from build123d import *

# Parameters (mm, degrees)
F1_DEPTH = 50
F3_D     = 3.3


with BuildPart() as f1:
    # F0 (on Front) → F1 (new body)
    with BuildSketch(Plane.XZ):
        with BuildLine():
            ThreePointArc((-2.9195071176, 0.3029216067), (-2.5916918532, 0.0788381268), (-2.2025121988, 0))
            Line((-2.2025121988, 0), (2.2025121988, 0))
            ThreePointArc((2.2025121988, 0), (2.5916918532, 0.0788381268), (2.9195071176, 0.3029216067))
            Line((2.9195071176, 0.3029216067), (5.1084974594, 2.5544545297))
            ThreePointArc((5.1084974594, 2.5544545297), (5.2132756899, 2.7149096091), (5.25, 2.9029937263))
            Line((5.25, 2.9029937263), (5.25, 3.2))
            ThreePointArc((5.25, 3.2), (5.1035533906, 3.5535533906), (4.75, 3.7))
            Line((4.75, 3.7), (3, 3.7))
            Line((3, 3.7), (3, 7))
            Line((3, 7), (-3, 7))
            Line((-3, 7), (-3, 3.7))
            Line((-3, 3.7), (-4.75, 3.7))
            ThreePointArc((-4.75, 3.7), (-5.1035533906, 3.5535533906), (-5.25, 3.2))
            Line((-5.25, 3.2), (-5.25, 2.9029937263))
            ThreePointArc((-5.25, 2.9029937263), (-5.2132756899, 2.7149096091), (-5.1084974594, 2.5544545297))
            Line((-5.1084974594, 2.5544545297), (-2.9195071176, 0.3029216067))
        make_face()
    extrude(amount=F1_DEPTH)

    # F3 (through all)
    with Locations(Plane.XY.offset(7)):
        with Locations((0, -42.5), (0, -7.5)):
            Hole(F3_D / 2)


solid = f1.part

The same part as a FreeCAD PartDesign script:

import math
import FreeCAD as App
import Part
import Sketcher
Q = App.Units.Quantity

doc = App.newDocument("Part")
body = doc.addObject("PartDesign::Body", "Body")

# Sketch on XZ plane
sketch1 = body.newObject("Sketcher::SketchObject", "Sketch")
sketch1.AttachmentSupport = (doc.getObject("XZ_Plane"), [""])
sketch1.MapMode = "FlatFace"
sketch1.addGeometry([
    Part.ArcOfCircle(Part.Circle(App.Vector(-2.2, 1, 0), App.Vector(0, 0, 1), 1), math.radians(-136), math.radians(-90)),  # 0
    Part.LineSegment(App.Vector(-2.2, 0, 0), App.Vector(2.2, 0, 0)),  # 1
    Part.ArcOfCircle(Part.Circle(App.Vector(2.2, 1, 0), App.Vector(0, 0, 1), 1), math.radians(-90), math.radians(-44)),  # 2
    Part.LineSegment(App.Vector(2.92, 0.3, 0), App.Vector(5.11, 2.55, 0)),  # 3
    Part.ArcOfCircle(Part.Circle(App.Vector(4.75, 2.9, 0), App.Vector(0, 0, 1), 0.5), math.radians(-44), math.radians(0)),  # 4
    Part.LineSegment(App.Vector(5.25, 2.9, 0), App.Vector(5.25, 3.2, 0)),  # 5
    Part.ArcOfCircle(Part.Circle(App.Vector(4.75, 3.2, 0), App.Vector(0, 0, 1), 0.5), math.radians(0), math.radians(90)),  # 6
    Part.LineSegment(App.Vector(4.75, 3.7, 0), App.Vector(3, 3.7, 0)),  # 7
    Part.LineSegment(App.Vector(3, 3.7, 0), App.Vector(3, 7, 0)),  # 8
    Part.LineSegment(App.Vector(3, 7, 0), App.Vector(-3, 7, 0)),  # 9
    Part.LineSegment(App.Vector(-3, 7, 0), App.Vector(-3, 3.7, 0)),  # 10
    Part.LineSegment(App.Vector(-3, 3.7, 0), App.Vector(-4.75, 3.7, 0)),  # 11
    Part.ArcOfCircle(Part.Circle(App.Vector(-4.75, 3.2, 0), App.Vector(0, 0, 1), 0.5), math.radians(90), math.radians(180)),  # 12
    Part.LineSegment(App.Vector(-5.25, 3.2, 0), App.Vector(-5.25, 2.9, 0)),  # 13
    Part.ArcOfCircle(Part.Circle(App.Vector(-4.75, 2.9, 0), App.Vector(0, 0, 1), 0.5), math.radians(180), math.radians(224)),  # 14
    Part.LineSegment(App.Vector(-5.11, 2.55, 0), App.Vector(-2.92, 0.3, 0)),  # 15
], False)
sketch1.addConstraint([
    Sketcher.Constraint("Tangent", 0, 2, 1, 1),
    Sketcher.Constraint("Tangent", 1, 2, 2, 1),
    Sketcher.Constraint("Tangent", 2, 2, 3, 1),
    Sketcher.Constraint("Tangent", 3, 2, 4, 1),
    Sketcher.Constraint("Tangent", 4, 2, 5, 1),
    Sketcher.Constraint("Tangent", 5, 2, 6, 1),
    Sketcher.Constraint("Tangent", 6, 2, 7, 1),
    Sketcher.Constraint("Coincident", 7, 2, 8, 1),
    Sketcher.Constraint("Coincident", 8, 2, 9, 1),
    Sketcher.Constraint("Coincident", 9, 2, 10, 1),
    Sketcher.Constraint("Coincident", 10, 2, 11, 1),
    Sketcher.Constraint("Tangent", 11, 2, 12, 1),
    Sketcher.Constraint("Tangent", 12, 2, 13, 1),
    Sketcher.Constraint("Tangent", 13, 2, 14, 1),
    Sketcher.Constraint("Tangent", 14, 2, 15, 1),
    Sketcher.Constraint("Tangent", 15, 2, 0, 1),
    Sketcher.Constraint("Horizontal", 1),
    Sketcher.Constraint("Vertical", 5),
    Sketcher.Constraint("Horizontal", 7),
    Sketcher.Constraint("Vertical", 8),
    Sketcher.Constraint("Horizontal", 9),
    Sketcher.Constraint("Vertical", 10),
    Sketcher.Constraint("Horizontal", 11),
    Sketcher.Constraint("Vertical", 13),
    Sketcher.Constraint("Equal", 0, 2),
    Sketcher.Constraint("Equal", 4, 6),
    Sketcher.Constraint("Equal", 6, 12),
    Sketcher.Constraint("Equal", 12, 14),
    Sketcher.Constraint("Symmetric", 0, 2, 1, 2, -1, 1),
    Sketcher.Constraint("Symmetric", 6, 3, 12, 3, -2),
    Sketcher.Constraint("Horizontal", 4, 3, 14, 3),
    Sketcher.Constraint("Equal", 7, 11),
    Sketcher.Constraint("Radius", 0, Q("1 mm")),
    Sketcher.Constraint("Radius", 4, Q("0.5 mm")),
    Sketcher.Constraint("DistanceX", 9, 2, 9, 1, Q("6 mm")),
    Sketcher.Constraint("DistanceY", 8, 1, 8, 2, Q("3.3 mm")),
    Sketcher.Constraint("DistanceY", -1, 1, 8, 2, Q("7 mm")),
    Sketcher.Constraint("DistanceX", 7, 2, 7, 1, Q("1.75 mm")),
    Sketcher.Constraint("DistanceX", 1, 1, 1, 2, Q("4.405024 mm")),
    Sketcher.Constraint("DistanceY", 5, 1, 5, 2, Q("0.297006 mm")),
])
pad1 = body.newObject("PartDesign::Pad", "Pad")
pad1.Profile = sketch1
pad1.Length = 50

# Sketch on XY plane
sketch2 = body.newObject("Sketcher::SketchObject", "Sketch001")
sketch2.AttachmentSupport = (doc.getObject("XY_Plane"), [""])
sketch2.MapMode = "FlatFace"
sketch2.AttachmentOffset = App.Placement(App.Vector(0, 0, 7), App.Rotation())
sketch2.addGeometry([
    Part.Circle(App.Vector(0, -42.5, 0), App.Vector(0, 0, 1), 1.6),
    Part.Circle(App.Vector(0, -7.5, 0), App.Vector(0, 0, 1), 1.6),
], False)
sketch2.addConstraint([
    Sketcher.Constraint("Equal", 0, 1),
    Sketcher.Constraint("PointOnObject", 0, 3, -2),
    Sketcher.Constraint("PointOnObject", 1, 3, -2),
    Sketcher.Constraint("Diameter", 0, Q("3.3 mm")),
    Sketcher.Constraint("DistanceY", 0, 3, 1, 3, Q("35 mm")),
    Sketcher.Constraint("DistanceY", 0, 3, -1, 1, Q("42.5 mm")),
])
doc.recompute()
hole = body.newObject("PartDesign::Hole", "Hole")
hole.Profile = sketch2
hole.ThreadType = "None"
hole.Diameter = 3.3
hole.DepthType = "ThroughAll"

doc.recompute()
